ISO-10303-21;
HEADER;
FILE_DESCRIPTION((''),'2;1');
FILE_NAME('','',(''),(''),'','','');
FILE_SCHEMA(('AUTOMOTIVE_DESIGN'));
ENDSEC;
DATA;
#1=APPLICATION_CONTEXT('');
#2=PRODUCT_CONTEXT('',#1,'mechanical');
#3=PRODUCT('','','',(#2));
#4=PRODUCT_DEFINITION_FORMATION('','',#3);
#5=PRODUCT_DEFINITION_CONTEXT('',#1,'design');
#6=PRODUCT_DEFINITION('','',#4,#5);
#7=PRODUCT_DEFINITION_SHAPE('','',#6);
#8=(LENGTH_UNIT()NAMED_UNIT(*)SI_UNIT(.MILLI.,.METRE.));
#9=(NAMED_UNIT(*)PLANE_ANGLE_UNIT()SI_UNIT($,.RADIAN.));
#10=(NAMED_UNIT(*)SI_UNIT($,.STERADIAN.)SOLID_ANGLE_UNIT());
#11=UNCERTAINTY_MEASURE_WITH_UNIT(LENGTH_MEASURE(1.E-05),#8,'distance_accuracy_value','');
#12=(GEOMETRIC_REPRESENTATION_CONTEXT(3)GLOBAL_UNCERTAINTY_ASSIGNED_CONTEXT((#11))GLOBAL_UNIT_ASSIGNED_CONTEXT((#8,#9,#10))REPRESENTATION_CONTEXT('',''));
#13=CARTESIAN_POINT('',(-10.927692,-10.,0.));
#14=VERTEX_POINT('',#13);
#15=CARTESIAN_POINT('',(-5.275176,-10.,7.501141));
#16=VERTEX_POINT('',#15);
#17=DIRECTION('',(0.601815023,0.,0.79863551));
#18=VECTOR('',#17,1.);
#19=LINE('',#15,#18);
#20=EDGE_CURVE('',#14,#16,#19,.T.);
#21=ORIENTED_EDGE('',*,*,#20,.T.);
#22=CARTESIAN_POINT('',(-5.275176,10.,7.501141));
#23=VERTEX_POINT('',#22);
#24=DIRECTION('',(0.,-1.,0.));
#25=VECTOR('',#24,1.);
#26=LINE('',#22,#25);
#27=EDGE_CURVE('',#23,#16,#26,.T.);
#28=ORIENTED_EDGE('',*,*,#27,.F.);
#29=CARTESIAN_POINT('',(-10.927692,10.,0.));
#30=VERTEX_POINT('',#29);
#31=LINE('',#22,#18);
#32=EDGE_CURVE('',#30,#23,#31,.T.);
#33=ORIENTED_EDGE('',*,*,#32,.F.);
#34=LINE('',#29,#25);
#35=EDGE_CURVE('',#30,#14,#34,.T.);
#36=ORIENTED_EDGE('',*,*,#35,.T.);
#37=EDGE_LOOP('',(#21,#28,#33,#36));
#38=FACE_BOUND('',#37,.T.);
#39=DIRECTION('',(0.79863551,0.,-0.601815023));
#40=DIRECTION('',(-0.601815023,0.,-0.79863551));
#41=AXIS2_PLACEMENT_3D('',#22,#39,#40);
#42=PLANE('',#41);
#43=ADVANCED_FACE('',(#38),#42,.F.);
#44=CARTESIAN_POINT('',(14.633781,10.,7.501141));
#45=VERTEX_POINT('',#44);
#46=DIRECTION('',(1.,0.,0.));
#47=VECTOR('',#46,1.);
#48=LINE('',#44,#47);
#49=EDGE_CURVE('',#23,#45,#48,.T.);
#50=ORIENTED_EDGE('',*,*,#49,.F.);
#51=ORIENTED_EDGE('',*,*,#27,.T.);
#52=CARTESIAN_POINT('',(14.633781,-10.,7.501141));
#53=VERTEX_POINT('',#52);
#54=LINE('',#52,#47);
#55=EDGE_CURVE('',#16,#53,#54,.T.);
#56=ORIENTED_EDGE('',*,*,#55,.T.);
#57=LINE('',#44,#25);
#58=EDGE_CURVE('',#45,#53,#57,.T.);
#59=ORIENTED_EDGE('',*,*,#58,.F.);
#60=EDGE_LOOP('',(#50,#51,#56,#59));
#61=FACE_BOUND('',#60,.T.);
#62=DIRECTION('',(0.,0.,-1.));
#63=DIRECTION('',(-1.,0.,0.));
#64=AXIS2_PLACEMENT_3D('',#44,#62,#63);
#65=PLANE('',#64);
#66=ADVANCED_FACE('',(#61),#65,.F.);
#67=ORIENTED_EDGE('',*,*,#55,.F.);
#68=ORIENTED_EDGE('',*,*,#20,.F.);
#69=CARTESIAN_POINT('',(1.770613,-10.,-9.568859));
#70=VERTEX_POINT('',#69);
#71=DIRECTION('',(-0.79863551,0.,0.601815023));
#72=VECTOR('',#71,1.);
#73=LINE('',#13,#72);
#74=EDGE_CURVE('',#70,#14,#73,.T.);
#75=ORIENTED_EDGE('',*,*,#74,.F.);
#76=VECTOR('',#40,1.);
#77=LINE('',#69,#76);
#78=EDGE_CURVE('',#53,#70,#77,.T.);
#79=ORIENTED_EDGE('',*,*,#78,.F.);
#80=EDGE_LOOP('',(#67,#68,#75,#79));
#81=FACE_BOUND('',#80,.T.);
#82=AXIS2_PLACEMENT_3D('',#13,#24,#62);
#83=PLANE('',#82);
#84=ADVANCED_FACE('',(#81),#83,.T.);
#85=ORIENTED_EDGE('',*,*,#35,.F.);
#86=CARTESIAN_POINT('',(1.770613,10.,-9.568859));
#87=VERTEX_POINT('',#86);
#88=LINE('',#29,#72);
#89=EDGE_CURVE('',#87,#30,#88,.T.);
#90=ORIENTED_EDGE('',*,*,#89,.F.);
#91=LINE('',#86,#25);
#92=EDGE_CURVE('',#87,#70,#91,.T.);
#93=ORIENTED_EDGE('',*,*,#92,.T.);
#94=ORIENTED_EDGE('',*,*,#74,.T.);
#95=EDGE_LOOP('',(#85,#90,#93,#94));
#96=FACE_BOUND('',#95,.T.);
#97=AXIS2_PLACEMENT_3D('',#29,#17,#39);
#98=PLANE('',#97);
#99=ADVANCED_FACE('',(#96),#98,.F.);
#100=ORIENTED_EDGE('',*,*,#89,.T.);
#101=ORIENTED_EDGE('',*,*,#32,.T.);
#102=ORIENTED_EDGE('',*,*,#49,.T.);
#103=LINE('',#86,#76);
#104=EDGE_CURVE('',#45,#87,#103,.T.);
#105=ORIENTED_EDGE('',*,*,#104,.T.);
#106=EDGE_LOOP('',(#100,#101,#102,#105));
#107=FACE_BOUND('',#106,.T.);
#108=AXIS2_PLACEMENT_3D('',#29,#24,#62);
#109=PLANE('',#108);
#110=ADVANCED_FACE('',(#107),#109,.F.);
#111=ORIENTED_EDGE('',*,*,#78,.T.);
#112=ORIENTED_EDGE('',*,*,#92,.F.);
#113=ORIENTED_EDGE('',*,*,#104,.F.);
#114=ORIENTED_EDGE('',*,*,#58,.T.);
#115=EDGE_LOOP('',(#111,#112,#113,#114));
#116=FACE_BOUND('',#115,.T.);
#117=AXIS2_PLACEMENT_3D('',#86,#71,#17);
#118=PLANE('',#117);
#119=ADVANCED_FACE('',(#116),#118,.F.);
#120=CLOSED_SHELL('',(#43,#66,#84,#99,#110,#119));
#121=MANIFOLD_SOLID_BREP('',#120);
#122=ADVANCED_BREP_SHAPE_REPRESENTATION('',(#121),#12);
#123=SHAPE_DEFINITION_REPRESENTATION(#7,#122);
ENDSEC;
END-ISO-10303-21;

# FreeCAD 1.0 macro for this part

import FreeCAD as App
import Part
import Sketcher
from FreeCAD import Vector
Q = App.Units.Quantity

doc = App.newDocument("Part")
body = doc.addObject("PartDesign::Body", "Body")

sketch1 = body.newObject("Sketcher::SketchObject", "Sketch")
sketch1.AttachmentSupport = (doc.getObject("XZ_Plane"), [""])
sketch1.MapMode = "FlatFace"
sketch1.AttachmentOffset = App.Placement(Vector(0, 0, 10), App.Rotation())
sketch1.addGeometry([
    Part.LineSegment(Vector(2, -10, 0), Vector(-11, 0, 0)),
    Part.LineSegment(Vector(-11, 0, 0), Vector(-5, 8, 0)),
    Part.LineSegment(Vector(-5, 8, 0), Vector(15, 8, 0)),
    Part.LineSegment(Vector(15, 8, 0), Vector(2, -10, 0)),
], False)
sketch1.addConstraint([
    Sketcher.Constraint("Coincident", 0, 2, 1, 1),
    Sketcher.Constraint("Coincident", 1, 2, 2, 1),
    Sketcher.Constraint("Coincident", 2, 2, 3, 1),
    Sketcher.Constraint("Coincident", 3, 2, 0, 1),
    Sketcher.Constraint("Horizontal", 2),
    Sketcher.Constraint("PointOnObject", 0, 2, -1),
    Sketcher.Constraint("Perpendicular", 0, 1),
    Sketcher.Constraint("Parallel", 1, 3),
    Sketcher.Constraint("Angle", 0, Q("143 deg")),
    Sketcher.Constraint("Distance", 0, Q("15.9 mm")),
    Sketcher.Constraint("DistanceY", 3, 2, 1, 2, Q("17.07 mm")),
    Sketcher.Constraint("DistanceX", 0, 2, -1, 1, Q("10.927692 mm")),
])
pad1 = body.newObject("PartDesign::Pad", "Pad")
pad1.Profile = sketch1
pad1.Length = 20
pad1.Reversed = True

doc.recompute()
